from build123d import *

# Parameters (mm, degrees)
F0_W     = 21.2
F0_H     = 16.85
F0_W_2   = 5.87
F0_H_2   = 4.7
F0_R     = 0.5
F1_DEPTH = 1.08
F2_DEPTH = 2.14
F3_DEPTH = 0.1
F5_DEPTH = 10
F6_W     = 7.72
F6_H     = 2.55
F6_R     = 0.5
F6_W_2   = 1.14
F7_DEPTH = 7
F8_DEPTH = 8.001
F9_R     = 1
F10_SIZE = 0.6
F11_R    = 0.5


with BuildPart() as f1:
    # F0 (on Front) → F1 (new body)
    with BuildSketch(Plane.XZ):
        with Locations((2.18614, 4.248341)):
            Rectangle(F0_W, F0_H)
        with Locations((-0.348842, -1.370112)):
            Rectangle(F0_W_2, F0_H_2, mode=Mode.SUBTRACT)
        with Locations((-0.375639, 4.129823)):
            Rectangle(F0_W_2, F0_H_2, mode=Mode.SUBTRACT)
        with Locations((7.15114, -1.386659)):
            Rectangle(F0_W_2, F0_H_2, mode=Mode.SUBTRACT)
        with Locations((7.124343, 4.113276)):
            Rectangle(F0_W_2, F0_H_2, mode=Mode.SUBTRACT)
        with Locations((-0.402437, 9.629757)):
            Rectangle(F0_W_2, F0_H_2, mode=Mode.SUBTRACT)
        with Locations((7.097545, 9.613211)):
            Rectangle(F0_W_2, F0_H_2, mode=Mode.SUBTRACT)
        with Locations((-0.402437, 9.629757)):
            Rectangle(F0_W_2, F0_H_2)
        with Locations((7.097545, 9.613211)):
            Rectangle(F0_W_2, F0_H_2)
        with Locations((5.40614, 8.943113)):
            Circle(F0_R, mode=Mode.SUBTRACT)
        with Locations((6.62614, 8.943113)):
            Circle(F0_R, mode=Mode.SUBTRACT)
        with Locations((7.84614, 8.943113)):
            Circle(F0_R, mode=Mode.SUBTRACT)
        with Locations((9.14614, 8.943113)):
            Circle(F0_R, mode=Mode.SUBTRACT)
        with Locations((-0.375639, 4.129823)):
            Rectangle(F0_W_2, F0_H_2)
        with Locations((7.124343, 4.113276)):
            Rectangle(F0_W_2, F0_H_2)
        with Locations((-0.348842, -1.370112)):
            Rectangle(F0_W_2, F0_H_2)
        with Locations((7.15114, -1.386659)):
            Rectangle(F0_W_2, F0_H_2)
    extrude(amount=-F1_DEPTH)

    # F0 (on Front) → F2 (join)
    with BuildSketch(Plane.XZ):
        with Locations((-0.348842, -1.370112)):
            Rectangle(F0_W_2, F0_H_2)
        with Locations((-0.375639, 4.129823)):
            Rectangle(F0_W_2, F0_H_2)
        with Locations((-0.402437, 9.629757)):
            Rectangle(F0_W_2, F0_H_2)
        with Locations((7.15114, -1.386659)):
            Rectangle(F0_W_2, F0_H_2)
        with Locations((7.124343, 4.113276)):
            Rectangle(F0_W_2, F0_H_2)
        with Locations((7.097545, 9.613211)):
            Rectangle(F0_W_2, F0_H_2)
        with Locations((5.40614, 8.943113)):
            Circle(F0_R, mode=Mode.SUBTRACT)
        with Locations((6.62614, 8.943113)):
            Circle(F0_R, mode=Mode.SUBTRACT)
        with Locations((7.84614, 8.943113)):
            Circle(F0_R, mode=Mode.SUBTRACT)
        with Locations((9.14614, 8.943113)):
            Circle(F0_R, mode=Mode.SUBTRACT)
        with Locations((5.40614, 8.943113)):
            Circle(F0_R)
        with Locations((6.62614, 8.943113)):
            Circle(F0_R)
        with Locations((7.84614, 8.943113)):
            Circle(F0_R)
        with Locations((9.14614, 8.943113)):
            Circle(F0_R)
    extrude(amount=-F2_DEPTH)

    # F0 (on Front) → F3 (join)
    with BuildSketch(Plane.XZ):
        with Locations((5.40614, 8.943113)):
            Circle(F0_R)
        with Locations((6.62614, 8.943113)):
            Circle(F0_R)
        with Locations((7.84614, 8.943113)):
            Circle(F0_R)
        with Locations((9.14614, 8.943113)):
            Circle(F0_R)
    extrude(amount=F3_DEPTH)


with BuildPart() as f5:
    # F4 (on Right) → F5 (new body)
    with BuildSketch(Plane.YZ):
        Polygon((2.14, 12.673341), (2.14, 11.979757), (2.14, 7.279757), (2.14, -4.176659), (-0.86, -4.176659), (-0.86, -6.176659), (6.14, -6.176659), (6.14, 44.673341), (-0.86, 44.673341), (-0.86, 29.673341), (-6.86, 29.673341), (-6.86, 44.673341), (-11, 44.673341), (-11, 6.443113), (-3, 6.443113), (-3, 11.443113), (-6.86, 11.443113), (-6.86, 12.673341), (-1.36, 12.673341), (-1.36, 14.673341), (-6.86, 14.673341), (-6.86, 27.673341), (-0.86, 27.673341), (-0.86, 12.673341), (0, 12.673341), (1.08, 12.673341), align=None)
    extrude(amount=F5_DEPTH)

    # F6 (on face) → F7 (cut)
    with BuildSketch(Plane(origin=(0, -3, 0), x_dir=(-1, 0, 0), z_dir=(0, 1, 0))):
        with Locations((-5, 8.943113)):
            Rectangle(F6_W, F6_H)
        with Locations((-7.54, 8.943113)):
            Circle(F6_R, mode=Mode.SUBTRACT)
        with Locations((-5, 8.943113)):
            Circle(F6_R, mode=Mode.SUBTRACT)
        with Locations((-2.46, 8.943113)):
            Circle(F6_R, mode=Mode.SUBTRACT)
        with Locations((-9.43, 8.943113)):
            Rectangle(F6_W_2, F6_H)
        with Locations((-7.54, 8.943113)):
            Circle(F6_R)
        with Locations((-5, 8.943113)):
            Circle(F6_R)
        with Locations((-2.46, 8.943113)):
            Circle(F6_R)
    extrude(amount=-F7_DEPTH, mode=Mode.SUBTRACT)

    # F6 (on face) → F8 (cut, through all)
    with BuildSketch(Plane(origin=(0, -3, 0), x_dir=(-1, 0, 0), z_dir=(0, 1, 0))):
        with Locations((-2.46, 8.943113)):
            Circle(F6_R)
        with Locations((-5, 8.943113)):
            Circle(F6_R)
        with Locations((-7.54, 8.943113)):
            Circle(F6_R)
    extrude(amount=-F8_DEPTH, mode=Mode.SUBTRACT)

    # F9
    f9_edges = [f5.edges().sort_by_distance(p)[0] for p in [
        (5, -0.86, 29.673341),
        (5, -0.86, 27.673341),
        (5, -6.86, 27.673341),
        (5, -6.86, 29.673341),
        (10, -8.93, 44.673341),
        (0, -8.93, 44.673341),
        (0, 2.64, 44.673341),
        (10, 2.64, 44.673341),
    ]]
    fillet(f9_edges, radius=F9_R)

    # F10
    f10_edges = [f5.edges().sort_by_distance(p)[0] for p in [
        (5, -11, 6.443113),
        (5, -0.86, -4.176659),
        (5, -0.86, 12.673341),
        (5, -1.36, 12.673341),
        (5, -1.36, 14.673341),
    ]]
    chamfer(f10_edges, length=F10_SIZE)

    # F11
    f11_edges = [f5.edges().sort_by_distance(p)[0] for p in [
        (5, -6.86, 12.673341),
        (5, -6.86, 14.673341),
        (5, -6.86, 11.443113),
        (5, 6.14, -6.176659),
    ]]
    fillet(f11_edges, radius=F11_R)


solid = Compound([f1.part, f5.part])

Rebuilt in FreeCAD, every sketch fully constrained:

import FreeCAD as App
import Part
import Sketcher

V = App.Vector


def edges_at(feature, points):
    """Names of the edges that pass closest to the given points."""
    edges = feature.Shape.Edges
    near = lambda p: min(range(len(edges)), key=lambda i: edges[i].distToShape(Part.Vertex(*p))[0])
    return sorted({f"Edge{near(p) + 1}" for p in points})


def add_polygon(sketch, points):
    """Adds a closed chain of lines whose ends are joined by coincident constraints."""
    first, n = sketch.GeometryCount, len(points)
    for a, b in zip(points, points[1:] + points[:1]):
        sketch.addGeometry(Part.LineSegment(App.Vector(*a, 0), App.Vector(*b, 0)), False)
    for i in range(n):
        sketch.addConstraint(Sketcher.Constraint("Coincident", first + i, 2, first + (i + 1) % n, 1))

doc = App.newDocument("Part")
params = doc.addObject("Spreadsheet::Sheet", "Params")
for row, (alias, value) in enumerate([
    ("sketch1_diameter", "1 mm"),
    ("sketch1_width", "21.2 mm"),
    ("sketch1_height", "16.85 mm"),
    ("pad1_length", "1.08 mm"),
    ("sketch2_height", "4.7 mm"),
    ("sketch2_width", "5.87 mm"),
    ("pad2_length", "2.14 mm"),
    ("sketch3_diameter", "1 mm"),
    ("pad3_length", "0.1 mm"),
    ("sketch4_width", "3 mm"),
    ("sketch4_width2", "7 mm"),
    ("sketch4_width3", "6 mm"),
    ("sketch4_width4", "8 mm"),
    ("sketch4_height", "2 mm"),
    ("pad4_length", "10 mm"),
    ("sketch5_width", "8.86 mm"),
    ("sketch5_height", "2.55 mm"),
    ("pocket1_length", "7 mm"),
    ("sketch6_diameter", "1 mm"),
    ("fillet_radius", "1 mm"),
    ("chamfer_size", "0.6 mm"),
    ("fillet2_radius", "0.5 mm"),
], start=1):
    params.set(f"A{row}", alias)
    params.set(f"B{row}", "=" + value)
    params.setAlias(f"B{row}", alias)

body = doc.addObject("PartDesign::Body", "Body")

# Sketch on XZ plane
sketch1 = body.newObject("Sketcher::SketchObject", "Sketch")
sketch1.AttachmentSupport = (doc.getObject("XZ_Plane"), [""])
sketch1.MapMode = "FlatFace"
add_polygon(sketch1, [(-8.4, 12.7), (-8.4, -4.2), (12.8, -4.2), (12.8, 12.7)])  # lines 0-3
sketch1.addGeometry(Part.Circle(V(5.4, 8.9, 0), V(0, 0, 1), 0.5), False)  # 4
sketch1.addGeometry(Part.Circle(V(6.6, 8.9, 0), V(0, 0, 1), 0.5), False)  # 5
sketch1.addGeometry(Part.Circle(V(7.8, 8.9, 0), V(0, 0, 1), 0.5), False)  # 6
sketch1.addGeometry(Part.Circle(V(9.1, 8.9, 0), V(0, 0, 1), 0.5), False)  # 7
sketch1.addConstraint([
    Sketcher.Constraint("Vertical", 0),
    Sketcher.Constraint("Horizontal", 1),
    Sketcher.Constraint("Vertical", 2),
    Sketcher.Constraint("Horizontal", 3),
    Sketcher.Constraint("Equal", 4, 5),
    Sketcher.Constraint("Equal", 5, 6),
    Sketcher.Constraint("Equal", 6, 7),
    Sketcher.Constraint("Horizontal", 4, 3, 5, 3),
    Sketcher.Constraint("Horizontal", 5, 3, 6, 3),
    Sketcher.Constraint("Horizontal", 6, 3, 7, 3),
    Sketcher.Constraint("Diameter", 4, 1.0),
    Sketcher.Constraint("DistanceX", 1, 1, 1, 2, 21.2),
    Sketcher.Constraint("DistanceY", 0, 2, 0, 1, 16.85),
    Sketcher.Constraint("DistanceX", 6, 3, 7, 3, 1.3),
    Sketcher.Constraint("DistanceX", 4, 3, 5, 3, 1.22),
    Sketcher.Constraint("DistanceX", 5, 3, 6, 3, 1.22),
    Sketcher.Constraint("DistanceX", 0, 2, 4, 3, 13.82),
    Sketcher.Constraint("DistanceX", -1, 1, 4, 3, 5.40614),
    Sketcher.Constraint("DistanceY", 0, 2, -1, 1, 4.176659),
    Sketcher.Constraint("DistanceY", 7, 3, 2, 2, 3.730228),
])
sketch1.setExpression("Constraints[14]", "Params.sketch1_diameter")
sketch1.setExpression("Constraints[15]", "Params.sketch1_width")
sketch1.setExpression("Constraints[16]", "Params.sketch1_height")
pad1 = body.newObject("PartDesign::Pad", "Pad")
pad1.Profile = sketch1
pad1.setExpression("Length", "Params.pad1_length")
pad1.Reversed = True

# Sketch on XZ plane
sketch2 = body.newObject("Sketcher::SketchObject", "Sketch001")
sketch2.AttachmentSupport = (doc.getObject("XZ_Plane"), [""])
sketch2.MapMode = "FlatFace"
add_polygon(sketch2, [(-3.3, 1), (-3.3, -3.7), (2.6, -3.7), (2.6, 1)])  # lines 0-3
add_polygon(sketch2, [(-3.3, 6.5), (-3.3, 1.8), (2.6, 1.8), (2.6, 6.5)])  # lines 4-7
add_polygon(sketch2, [(-3.3, 12), (-3.3, 7.3), (2.5, 7.3), (2.5, 12)])  # lines 8-11
add_polygon(sketch2, [(4.2, 1), (4.2, -3.7), (10.1, -3.7), (10.1, 1)])  # lines 12-15
add_polygon(sketch2, [(4.2, 6.5), (4.2, 1.8), (10.1, 1.8), (10.1, 6.5)])  # lines 16-19
add_polygon(sketch2, [(4.2, 12), (4.2, 7.3), (10, 7.3), (10, 12)])  # lines 20-23
sketch2.addConstraint([
    Sketcher.Constraint("Vertical", 0),
    Sketcher.Constraint("Horizontal", 1),
    Sketcher.Constraint("Vertical", 2),
    Sketcher.Constraint("Horizontal", 3),
    Sketcher.Constraint("Vertical", 4),
    Sketcher.Constraint("Horizontal", 5),
    Sketcher.Constraint("Vertical", 6),
    Sketcher.Constraint("Horizontal", 7),
    Sketcher.Constraint("Vertical", 8),
    Sketcher.Constraint("Horizontal", 9),
    Sketcher.Constraint("Vertical", 10),
    Sketcher.Constraint("Horizontal", 11),
    Sketcher.Constraint("Vertical", 12),
    Sketcher.Constraint("Horizontal", 13),
    Sketcher.Constraint("Vertical", 14),
    Sketcher.Constraint("Horizontal", 15),
    Sketcher.Constraint("Vertical", 16),
    Sketcher.Constraint("Horizontal", 17),
    Sketcher.Constraint("Vertical", 18),
    Sketcher.Constraint("Horizontal", 19),
    Sketcher.Constraint("Vertical", 20),
    Sketcher.Constraint("Horizontal", 21),
    Sketcher.Constraint("Vertical", 22),
    Sketcher.Constraint("Horizontal", 23),
    Sketcher.Constraint("Equal", 3, 5),
    Sketcher.Constraint("Equal", 7, 9),
    Sketcher.Constraint("Equal", 11, 13),
    Sketcher.Constraint("Equal", 15, 17),
    Sketcher.Constraint("Equal", 19, 21),
    Sketcher.Constraint("Equal", 2, 4),
    Sketcher.Constraint("Equal", 6, 8),
    Sketcher.Constraint("Equal", 10, 12),
    Sketcher.Constraint("Equal", 14, 16),
    Sketcher.Constraint("Equal", 18, 20),
    Sketcher.Constraint("DistanceY", 0, 2, 0, 1, 4.7),
    Sketcher.Constraint("DistanceX", 1, 1, 1, 2, 5.87),
    Sketcher.Constraint("DistanceX", 8, 2, 6, 2, 5.896798),
    Sketcher.Constraint("DistanceX", 20, 2, 19, 2, 0.026798),
    Sketcher.Constraint("DistanceX", 0, 2, -1, 1, 3.283842),
    Sketcher.Constraint("DistanceY", 0, 2, -1, 1, 3.720112),
    Sketcher.Constraint("DistanceX", 4, 2, -1, 1, 3.310639),
    Sketcher.Constraint("DistanceX", -1, 1, 12, 2, 4.21614),
    Sketcher.Constraint("DistanceY", 12, 2, -1, 1, 3.736659),
    Sketcher.Constraint("DistanceY", -1, 1, 20, 2, 7.263211),
    Sketcher.Constraint("DistanceY", 3, 2, 8, 2, 6.299869),
    Sketcher.Constraint("DistanceY", 13, 2, 6, 2, 10.216482),
    Sketcher.Constraint("DistanceY", 2, 2, 16, 2, 0.783388),
    Sketcher.Constraint("DistanceX", 9, 2, 18, 2, 7.52678),
])
sketch2.setExpression("Constraints[58]", "Params.sketch2_height")
sketch2.setExpression("Constraints[59]", "Params.sketch2_width")
pad2 = body.newObject("PartDesign::Pad", "Pad001")
pad2.Profile = sketch2
pad2.setExpression("Length", "Params.pad2_length")
pad2.Reversed = True

# Sketch on XZ plane
sketch3 = body.newObject("Sketcher::SketchObject", "Sketch002")
sketch3.AttachmentSupport = (doc.getObject("XZ_Plane"), [""])
sketch3.MapMode = "FlatFace"
sketch3.addGeometry([
    Part.Circle(V(5.4, 8.9, 0), V(0, 0, 1), 0.5),
    Part.Circle(V(6.6, 8.9, 0), V(0, 0, 1), 0.5),
    Part.Circle(V(7.8, 8.9, 0), V(0, 0, 1), 0.5),
    Part.Circle(V(9.1, 8.9, 0), V(0, 0, 1), 0.5),
], False)
sketch3.addConstraint([
    Sketcher.Constraint("Equal", 0, 1),
    Sketcher.Constraint("Equal", 1, 2),
    Sketcher.Constraint("Equal", 2, 3),
    Sketcher.Constraint("Horizontal", 0, 3, 1, 3),
    Sketcher.Constraint("Horizontal", 1, 3, 2, 3),
    Sketcher.Constraint("Horizontal", 2, 3, 3, 3),
    Sketcher.Constraint("Diameter", 0, 1.0),
    Sketcher.Constraint("DistanceX", 2, 3, 3, 3, 1.3),
    Sketcher.Constraint("DistanceX", 0, 3, 1, 3, 1.22),
    Sketcher.Constraint("DistanceX", 1, 3, 2, 3, 1.22),
    Sketcher.Constraint("DistanceX", -1, 1, 0, 3, 5.40614),
    Sketcher.Constraint("DistanceY", -1, 1, 0, 3, 8.943113),
])
sketch3.setExpression("Constraints[6]", "Params.sketch3_diameter")
pad3 = body.newObject("PartDesign::Pad", "Pad002")
pad3.Profile = sketch3
pad3.setExpression("Length", "Params.pad3_length")
body2 = doc.addObject("PartDesign::Body", "Body001")

# Sketch on YZ plane
sketch4 = body2.newObject("Sketcher::SketchObject", "Sketch003")
sketch4.AttachmentSupport = (doc.getObject("YZ_Plane001"), [""])
sketch4.MapMode = "FlatFace"
add_polygon(sketch4, [(2.1, 12.7), (2.1, -4.2), (-0.9, -4.2), (-0.9, -6.2), (6.1, -6.2), (6.1, 44.7), (-0.9, 44.7), (-0.9, 29.7), (-6.9, 29.7), (-6.9, 44.7), (-11, 44.7), (-11, 6.4), (-3, 6.4), (-3, 11.4), (-6.9, 11.4), (-6.9, 12.7), (-1.4, 12.7), (-1.4, 14.7), (-6.9, 14.7), (-6.9, 27.7), (-0.9, 27.7), (-0.9, 12.7)])  # lines 0-21
sketch4.addConstraint([
    Sketcher.Constraint("Vertical", 0),
    Sketcher.Constraint("Horizontal", 1),
    Sketcher.Constraint("Vertical", 2),
    Sketcher.Constraint("Horizontal", 3),
    Sketcher.Constraint("Vertical", 4),
    Sketcher.Constraint("Horizontal", 5),
    Sketcher.Constraint("Vertical", 6),
    Sketcher.Constraint("Horizontal", 7),
    Sketcher.Constraint("Vertical", 8),
    Sketcher.Constraint("Horizontal", 9),
    Sketcher.Constraint("Vertical", 10),
    Sketcher.Constraint("Horizontal", 11),
    Sketcher.Constraint("Vertical", 12),
    Sketcher.Constraint("Horizontal", 13),
    Sketcher.Constraint("Vertical", 14),
    Sketcher.Constraint("Horizontal", 15),
    Sketcher.Constraint("Vertical", 16),
    Sketcher.Constraint("Horizontal", 17),
    Sketcher.Constraint("Vertical", 18),
    Sketcher.Constraint("Horizontal", 19),
    Sketcher.Constraint("Vertical", 20),
    Sketcher.Constraint("Horizontal", 21),
    Sketcher.Constraint("Horizontal", 5, 2, 8, 2),
    Sketcher.Constraint("Horizontal", 15, 2, 20, 2),
    Sketcher.Constraint("Vertical", 2, 2, 5, 2),
    Sketcher.Constraint("Vertical", 8, 2, 13, 2),
    Sketcher.Constraint("Vertical", 14, 2, 17, 2),
    Sketcher.Constraint("Vertical", 6, 2, 19, 2),
    Sketcher.Constraint("Equal", 2, 16),
    Sketcher.Constraint("Equal", 8, 20),
    Sketcher.Constraint("DistanceX", 1, 2, 1, 1, 3.0),
    Sketcher.Constraint("DistanceX", 3, 1, 3, 2, 7.0),
    Sketcher.Constraint("DistanceX", 7, 2, 7, 1, 6.0),
    Sketcher.Constraint("DistanceX", 11, 1, 11, 2, 8.0),
    Sketcher.Constraint("DistanceY", 2, 2, 2, 1, 2.0),
    Sketcher.Constraint("DistanceY", 6, 2, 6, 1, 15.0),
    Sketcher.Constraint("DistanceY", 12, 1, 12, 2, 5.0),
    Sketcher.Constraint("DistanceX", 15, 1, 15, 2, 5.5),
    Sketcher.Constraint("DistanceX", 9, 2, -1, 1, 11.0),
    Sketcher.Constraint("DistanceY", 14, 2, 7, 2, 17.0),
    Sketcher.Constraint("DistanceX", 9, 2, 9, 1, 4.14),
    Sketcher.Constraint("DistanceY", 0, 2, 0, 1, 16.85),
    Sketcher.Constraint("DistanceY", 14, 1, 14, 2, 1.230228),
    Sketcher.Constraint("DistanceY", 0, 2, -1, 1, 4.176659),
])
sketch4.setExpression("Constraints[52]", "Params.sketch4_width")
sketch4.setExpression("Constraints[53]", "Params.sketch4_width2")
sketch4.setExpression("Constraints[54]", "Params.sketch4_width3")
sketch4.setExpression("Constraints[55]", "Params.sketch4_width4")
sketch4.setExpression("Constraints[56]", "Params.sketch4_height")
pad4 = body2.newObject("PartDesign::Pad", "Pad003")
pad4.Profile = sketch4
pad4.setExpression("Length", "Params.pad4_length")

# Sketch on XZ plane
sketch5 = body2.newObject("Sketcher::SketchObject", "Sketch004")
sketch5.AttachmentSupport = (doc.getObject("XZ_Plane001"), [""])
sketch5.MapMode = "FlatFace"
sketch5.AttachmentOffset = App.Placement(V(0, 0, 3), App.Rotation())
add_polygon(sketch5, [(1.1, 7.7), (1.1, 10.2), (10, 10.2), (10, 7.7)])  # lines 0-3
sketch5.addConstraint([
    Sketcher.Constraint("Vertical", 0),
    Sketcher.Constraint("Horizontal", 1),
    Sketcher.Constraint("Vertical", 2),
    Sketcher.Constraint("Horizontal", 3),
    Sketcher.Constraint("DistanceX", -1, 1, 1, 2, 10.0),
    Sketcher.Constraint("DistanceX", 1, 1, 1, 2, 8.86),
    Sketcher.Constraint("DistanceY", 0, 1, 0, 2, 2.55),
    Sketcher.Constraint("DistanceY", -1, 1, 0, 2, 10.218113),
])
sketch5.setExpression("Constraints[9]", "Params.sketch5_width")
sketch5.setExpression("Constraints[10]", "Params.sketch5_height")
pocket1 = body2.newObject("PartDesign::Pocket", "Pocket")
pocket1.Profile = sketch5
pocket1.setExpression("Length", "Params.pocket1_length")
pocket1.Reversed = True

# Sketch on XZ plane
sketch6 = body2.newObject("Sketcher::SketchObject", "Sketch005")
sketch6.AttachmentSupport = (doc.getObject("XZ_Plane001"), [""])
sketch6.MapMode = "FlatFace"
sketch6.AttachmentOffset = App.Placement(V(0, 0, 3), App.Rotation())
sketch6.addGeometry([
    Part.Circle(V(2.5, 8.9, 0), V(0, 0, 1), 0.5),
    Part.Circle(V(5, 8.9, 0), V(0, 0, 1), 0.5),
    Part.Circle(V(7.5, 8.9, 0), V(0, 0, 1), 0.5),
], False)
sketch6.addConstraint([
    Sketcher.Constraint("Equal", 0, 1),
    Sketcher.Constraint("Equal", 1, 2),
    Sketcher.Constraint("Horizontal", 0, 3, 1, 3),
    Sketcher.Constraint("Horizontal", 1, 3, 2, 3),
    Sketcher.Constraint("Diameter", 0, 1.0),
    Sketcher.Constraint("DistanceX", -1, 1, 1, 3, 5.0),
    Sketcher.Constraint("DistanceX", -1, 1, 0, 3, 2.46),
    Sketcher.Constraint("DistanceX", -1, 1, 2, 3, 7.54),
    Sketcher.Constraint("DistanceY", -1, 1, 0, 3, 8.943113),
])
sketch6.setExpression("Constraints[4]", "Params.sketch6_diameter")
pocket2 = body2.newObject("PartDesign::Pocket", "Pocket001")
pocket2.Profile = sketch6
pocket2.Type = "ThroughAll"
pocket2.Reversed = True
doc.recompute()

fillet = body2.newObject("PartDesign::Fillet", "Fillet")
fillet.Base = (pocket2, edges_at(pocket2, [
    (5, -0.86, 29.673),
    (5, -0.86, 27.673),
    (5, -6.86, 27.673),
    (5, -6.86, 29.673),
    (10, -8.93, 44.673),
    (0, -8.93, 44.673),
    (0, 2.64, 44.673),
    (10, 2.64, 44.673),
]))
fillet.setExpression("Radius", "Params.fillet_radius")
doc.recompute()

chamfer = body2.newObject("PartDesign::Chamfer", "Chamfer")
chamfer.Base = (fillet, edges_at(fillet, [
    (5, -11, 6.443),
    (5, -0.86, -4.177),
    (5, -0.86, 12.673),
    (5, -1.36, 12.673),
    (5, -1.36, 14.673),
]))
chamfer.setExpression("Size", "Params.chamfer_size")
doc.recompute()

fillet2 = body2.newObject("PartDesign::Fillet", "Fillet001")
fillet2.Base = (chamfer, edges_at(chamfer, [
    (5, -6.86, 12.673),
    (5, -6.86, 14.673),
    (5, -6.86, 11.443),
    (5, 6.14, -6.177),
]))
fillet2.setExpression("Radius", "Params.fillet2_radius")

doc.recompute()
